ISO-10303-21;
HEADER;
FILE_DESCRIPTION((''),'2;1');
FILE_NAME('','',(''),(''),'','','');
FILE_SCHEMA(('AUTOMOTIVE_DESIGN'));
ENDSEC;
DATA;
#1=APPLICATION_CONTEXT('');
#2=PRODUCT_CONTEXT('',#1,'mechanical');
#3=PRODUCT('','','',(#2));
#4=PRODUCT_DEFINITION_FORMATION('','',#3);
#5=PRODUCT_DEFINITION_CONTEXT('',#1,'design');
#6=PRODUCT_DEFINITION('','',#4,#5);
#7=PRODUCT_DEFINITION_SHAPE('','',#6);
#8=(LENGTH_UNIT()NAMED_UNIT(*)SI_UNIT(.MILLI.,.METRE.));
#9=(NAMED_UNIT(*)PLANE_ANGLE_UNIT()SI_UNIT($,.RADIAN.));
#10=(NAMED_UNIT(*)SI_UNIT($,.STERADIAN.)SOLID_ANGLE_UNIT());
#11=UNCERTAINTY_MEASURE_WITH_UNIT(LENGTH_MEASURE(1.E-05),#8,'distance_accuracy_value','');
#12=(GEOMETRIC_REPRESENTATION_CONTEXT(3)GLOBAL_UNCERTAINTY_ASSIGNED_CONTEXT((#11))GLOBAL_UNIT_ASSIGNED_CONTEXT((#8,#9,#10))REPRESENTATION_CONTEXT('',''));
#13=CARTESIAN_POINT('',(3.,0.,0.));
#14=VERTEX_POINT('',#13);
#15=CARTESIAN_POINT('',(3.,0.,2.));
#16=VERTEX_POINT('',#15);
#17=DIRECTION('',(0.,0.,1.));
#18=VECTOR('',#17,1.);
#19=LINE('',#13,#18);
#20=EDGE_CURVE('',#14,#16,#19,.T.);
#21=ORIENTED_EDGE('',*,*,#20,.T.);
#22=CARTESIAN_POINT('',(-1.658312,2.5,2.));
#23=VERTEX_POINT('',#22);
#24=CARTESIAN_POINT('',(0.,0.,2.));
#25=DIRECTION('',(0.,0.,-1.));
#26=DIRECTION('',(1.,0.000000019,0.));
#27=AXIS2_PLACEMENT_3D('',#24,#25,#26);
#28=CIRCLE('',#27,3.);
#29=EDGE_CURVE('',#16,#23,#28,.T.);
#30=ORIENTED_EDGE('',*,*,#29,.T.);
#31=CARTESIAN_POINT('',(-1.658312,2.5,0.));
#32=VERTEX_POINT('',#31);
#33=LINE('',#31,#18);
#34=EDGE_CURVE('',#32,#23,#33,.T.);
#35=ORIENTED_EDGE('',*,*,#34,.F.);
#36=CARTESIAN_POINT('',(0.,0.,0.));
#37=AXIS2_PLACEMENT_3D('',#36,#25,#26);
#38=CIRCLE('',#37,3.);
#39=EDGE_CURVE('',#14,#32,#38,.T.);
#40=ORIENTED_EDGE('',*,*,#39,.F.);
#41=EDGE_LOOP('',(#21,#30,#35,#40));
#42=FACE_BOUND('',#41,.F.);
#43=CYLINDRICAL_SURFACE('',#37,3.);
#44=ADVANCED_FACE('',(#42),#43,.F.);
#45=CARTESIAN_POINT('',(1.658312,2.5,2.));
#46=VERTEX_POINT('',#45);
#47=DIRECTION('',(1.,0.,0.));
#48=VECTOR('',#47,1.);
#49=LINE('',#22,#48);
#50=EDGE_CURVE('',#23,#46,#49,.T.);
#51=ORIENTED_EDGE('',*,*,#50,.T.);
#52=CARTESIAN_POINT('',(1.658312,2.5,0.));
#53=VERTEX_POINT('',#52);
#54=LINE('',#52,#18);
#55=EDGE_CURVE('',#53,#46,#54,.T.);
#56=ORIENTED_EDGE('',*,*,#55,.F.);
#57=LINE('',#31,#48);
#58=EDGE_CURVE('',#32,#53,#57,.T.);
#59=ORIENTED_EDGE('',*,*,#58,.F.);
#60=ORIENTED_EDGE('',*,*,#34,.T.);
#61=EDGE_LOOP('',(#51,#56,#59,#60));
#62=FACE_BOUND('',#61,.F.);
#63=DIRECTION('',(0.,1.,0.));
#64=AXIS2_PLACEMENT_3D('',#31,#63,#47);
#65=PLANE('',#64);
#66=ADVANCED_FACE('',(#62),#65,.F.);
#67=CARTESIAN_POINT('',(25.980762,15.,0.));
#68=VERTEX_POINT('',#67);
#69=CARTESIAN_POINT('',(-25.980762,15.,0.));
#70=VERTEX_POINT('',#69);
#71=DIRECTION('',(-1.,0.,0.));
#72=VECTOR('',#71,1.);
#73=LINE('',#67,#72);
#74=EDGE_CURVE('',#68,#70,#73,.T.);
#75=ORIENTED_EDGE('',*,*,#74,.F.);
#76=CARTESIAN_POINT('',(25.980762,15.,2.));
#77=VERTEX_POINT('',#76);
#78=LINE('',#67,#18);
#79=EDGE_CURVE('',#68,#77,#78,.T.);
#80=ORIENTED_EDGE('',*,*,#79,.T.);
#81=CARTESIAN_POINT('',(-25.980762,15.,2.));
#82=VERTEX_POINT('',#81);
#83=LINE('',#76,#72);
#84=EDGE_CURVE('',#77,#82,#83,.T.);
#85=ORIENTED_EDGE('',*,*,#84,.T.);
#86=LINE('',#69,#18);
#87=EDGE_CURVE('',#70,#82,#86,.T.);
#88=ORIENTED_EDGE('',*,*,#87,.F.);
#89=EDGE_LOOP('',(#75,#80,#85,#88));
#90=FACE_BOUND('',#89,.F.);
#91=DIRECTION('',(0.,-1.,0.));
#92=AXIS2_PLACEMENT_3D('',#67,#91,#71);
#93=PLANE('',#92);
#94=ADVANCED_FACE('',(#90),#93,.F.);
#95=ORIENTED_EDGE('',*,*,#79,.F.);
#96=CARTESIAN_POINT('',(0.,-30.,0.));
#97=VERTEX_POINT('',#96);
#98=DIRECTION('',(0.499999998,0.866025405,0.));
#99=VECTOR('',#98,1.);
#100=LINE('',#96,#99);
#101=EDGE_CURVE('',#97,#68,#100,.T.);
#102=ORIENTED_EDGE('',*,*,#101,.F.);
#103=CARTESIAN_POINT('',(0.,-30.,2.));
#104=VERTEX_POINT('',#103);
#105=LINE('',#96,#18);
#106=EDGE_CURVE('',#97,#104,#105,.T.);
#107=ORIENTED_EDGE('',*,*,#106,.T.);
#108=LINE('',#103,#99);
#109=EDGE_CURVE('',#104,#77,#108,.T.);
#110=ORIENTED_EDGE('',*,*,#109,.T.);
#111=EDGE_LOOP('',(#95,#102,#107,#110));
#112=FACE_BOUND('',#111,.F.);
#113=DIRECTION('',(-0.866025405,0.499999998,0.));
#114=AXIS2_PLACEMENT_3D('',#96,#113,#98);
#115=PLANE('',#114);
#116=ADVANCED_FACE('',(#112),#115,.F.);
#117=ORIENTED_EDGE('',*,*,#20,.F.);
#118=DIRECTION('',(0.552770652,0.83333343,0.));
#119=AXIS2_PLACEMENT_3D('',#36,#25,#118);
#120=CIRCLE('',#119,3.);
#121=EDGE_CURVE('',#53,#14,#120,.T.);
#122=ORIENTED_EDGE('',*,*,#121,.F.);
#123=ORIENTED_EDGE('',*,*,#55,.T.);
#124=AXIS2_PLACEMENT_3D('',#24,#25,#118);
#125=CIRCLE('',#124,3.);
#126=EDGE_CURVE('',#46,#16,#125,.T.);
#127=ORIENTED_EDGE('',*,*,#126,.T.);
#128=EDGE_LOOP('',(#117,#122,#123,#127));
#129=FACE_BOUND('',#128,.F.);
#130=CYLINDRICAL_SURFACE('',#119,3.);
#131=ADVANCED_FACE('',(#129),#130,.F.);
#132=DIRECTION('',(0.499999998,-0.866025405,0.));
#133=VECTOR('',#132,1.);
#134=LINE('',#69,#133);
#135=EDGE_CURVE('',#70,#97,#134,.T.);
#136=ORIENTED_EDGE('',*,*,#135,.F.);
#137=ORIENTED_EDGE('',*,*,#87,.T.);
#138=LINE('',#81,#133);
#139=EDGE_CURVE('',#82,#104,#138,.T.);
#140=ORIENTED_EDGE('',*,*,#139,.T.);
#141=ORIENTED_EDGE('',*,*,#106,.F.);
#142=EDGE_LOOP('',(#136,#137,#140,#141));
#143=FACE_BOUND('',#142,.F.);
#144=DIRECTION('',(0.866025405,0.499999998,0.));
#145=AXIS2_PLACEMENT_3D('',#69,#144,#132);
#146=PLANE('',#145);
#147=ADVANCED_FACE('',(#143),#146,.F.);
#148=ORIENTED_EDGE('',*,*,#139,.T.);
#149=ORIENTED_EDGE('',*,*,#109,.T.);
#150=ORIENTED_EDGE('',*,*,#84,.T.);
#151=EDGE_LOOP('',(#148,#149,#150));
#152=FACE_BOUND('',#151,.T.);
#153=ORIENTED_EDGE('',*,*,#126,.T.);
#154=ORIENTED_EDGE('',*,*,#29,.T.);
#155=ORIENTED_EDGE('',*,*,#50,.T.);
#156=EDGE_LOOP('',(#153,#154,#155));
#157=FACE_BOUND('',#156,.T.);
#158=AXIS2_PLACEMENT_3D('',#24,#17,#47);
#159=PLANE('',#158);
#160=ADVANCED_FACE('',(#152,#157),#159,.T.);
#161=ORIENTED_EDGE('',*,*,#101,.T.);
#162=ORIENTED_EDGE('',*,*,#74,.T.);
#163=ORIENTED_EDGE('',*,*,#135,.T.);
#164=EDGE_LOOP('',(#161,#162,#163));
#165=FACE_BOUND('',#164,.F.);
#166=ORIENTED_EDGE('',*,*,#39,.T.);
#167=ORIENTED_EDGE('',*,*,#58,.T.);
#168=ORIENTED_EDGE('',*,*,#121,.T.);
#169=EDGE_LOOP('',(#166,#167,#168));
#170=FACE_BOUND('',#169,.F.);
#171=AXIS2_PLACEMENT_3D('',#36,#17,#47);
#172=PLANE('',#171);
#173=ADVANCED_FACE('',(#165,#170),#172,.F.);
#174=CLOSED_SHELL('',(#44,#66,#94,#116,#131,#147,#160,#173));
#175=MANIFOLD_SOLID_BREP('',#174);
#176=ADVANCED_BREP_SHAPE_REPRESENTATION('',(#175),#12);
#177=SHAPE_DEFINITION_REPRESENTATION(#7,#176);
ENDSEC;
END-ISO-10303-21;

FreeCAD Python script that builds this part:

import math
import FreeCAD as App
import Part
import Sketcher
Q = App.Units.Quantity


def add_polygon(sketch, points):
    """Adds a closed chain of lines whose ends are joined by coincident constraints."""
    first, n = sketch.GeometryCount, len(points)
    for a, b in zip(points, points[1:] + points[:1]):
        sketch.addGeometry(Part.LineSegment(App.Vector(*a, 0), App.Vector(*b, 0)), False)
    for i in range(n):
        sketch.addConstraint(Sketcher.Constraint("Coincident", first + i, 2, first + (i + 1) % n, 1))

doc = App.newDocument("Part")
body = doc.addObject("PartDesign::Body", "Body")

# Sketch on XY plane
sketch1 = doc.addObject("Sketcher::SketchObject", "Sketch")
body.addObject(sketch1)
sketch1.AttachmentSupport = (doc.XY_Plane, [""])
sketch1.MapMode = "FlatFace"
add_polygon(sketch1, [(25.980762, 15), (-25.980762, 15), (0, -30)])  # lines 0-2
sketch1.addGeometry(Part.ArcOfCircle(Part.Circle(App.Vector(0, 0, 0), App.Vector(0, 0, 1), 3), math.radians(123.557305), math.radians(360.000001)), False)  # 3
sketch1.addGeometry(Part.LineSegment(App.Vector(-1.658312, 2.5, 0), App.Vector(1.658312, 2.5, 0)), False)  # 4
sketch1.addGeometry(Part.ArcOfCircle(Part.Circle(App.Vector(0, 0, 0), App.Vector(0, 0, 1), 3), math.radians(0.000004), math.radians(56.4427)), False)  # 5
sketch1.addConstraint(Sketcher.Constraint("Coincident", 3, 1, 4, 1))
sketch1.addConstraint(Sketcher.Constraint("Coincident", 4, 2, 5, 2))
sketch1.addConstraint(Sketcher.Constraint("Tangent", 5, 1, 3, 2))
sketch1.addConstraint(Sketcher.Constraint("Horizontal", 0))
sketch1.addConstraint(Sketcher.Constraint("Horizontal", 4))
sketch1.addConstraint(Sketcher.Constraint("Coincident", 3, 3, -1, 1))
sketch1.addConstraint(Sketcher.Constraint("Equal", 3, 5))
sketch1.addConstraint(Sketcher.Constraint("PointOnObject", 1, 2, -2))
sketch1.addConstraint(Sketcher.Constraint("PointOnObject", 5, 1, -1))
sketch1.addConstraint(Sketcher.Constraint("Equal", 1, 2))
sketch1.addConstraint(Sketcher.Constraint("Radius", 3, Q("3 mm")))
sketch1.addConstraint(Sketcher.Constraint("Angle", 1, Q("-60 deg")))
sketch1.addConstraint(Sketcher.Constraint("DistanceY", -1, 1, 0, 2, Q("15 mm")))
sketch1.addConstraint(Sketcher.Constraint("DistanceY", 1, 2, -1, 1, Q("30 mm")))
sketch1.addConstraint(Sketcher.Constraint("DistanceY", -1, 1, 3, 1, Q("2.5 mm")))
pad1 = doc.addObject("PartDesign::Pad", "Pad")
body.addObject(pad1)
pad1.Profile = sketch1
pad1.Length = 2

doc.recompute()
